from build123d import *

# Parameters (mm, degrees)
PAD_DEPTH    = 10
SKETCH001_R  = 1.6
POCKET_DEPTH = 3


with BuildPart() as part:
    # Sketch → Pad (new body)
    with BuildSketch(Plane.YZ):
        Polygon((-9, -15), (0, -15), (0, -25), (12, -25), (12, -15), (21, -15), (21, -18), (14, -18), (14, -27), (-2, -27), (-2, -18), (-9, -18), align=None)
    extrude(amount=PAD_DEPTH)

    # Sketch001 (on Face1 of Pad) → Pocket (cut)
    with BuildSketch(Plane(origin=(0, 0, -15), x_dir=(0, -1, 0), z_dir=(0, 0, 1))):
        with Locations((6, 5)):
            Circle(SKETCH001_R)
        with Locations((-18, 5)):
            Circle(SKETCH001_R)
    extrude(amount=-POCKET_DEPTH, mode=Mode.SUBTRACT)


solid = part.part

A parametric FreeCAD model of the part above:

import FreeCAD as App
import Part
import Sketcher

V = App.Vector
Q = App.Units.Quantity


def add_polygon(sketch, points):
    """Adds a closed chain of lines whose ends are joined by coincident constraints."""
    first, n = sketch.GeometryCount, len(points)
    for a, b in zip(points, points[1:] + points[:1]):
        sketch.addGeometry(Part.LineSegment(App.Vector(*a, 0), App.Vector(*b, 0)), False)
    for i in range(n):
        sketch.addConstraint(Sketcher.Constraint("Coincident", first + i, 2, first + (i + 1) % n, 1))

doc = App.newDocument("Part")
body = doc.addObject("PartDesign::Body", "Body")

# Sketch on YZ plane
sketch1 = doc.addObject("Sketcher::SketchObject", "Sketch")
body.addObject(sketch1)
sketch1.AttachmentSupport = (doc.YZ_Plane, [""])
sketch1.MapMode = "FlatFace"
add_polygon(sketch1, [(0, -15), (-9, -15), (-9, -18), (-2, -18), (-2, -27), (14, -27), (14, -18), (21, -18), (21, -15), (12, -15), (12, -25), (0, -25)])  # lines 0-11
sketch1.addConstraint(Sketcher.Constraint("Horizontal", 0))
sketch1.addConstraint(Sketcher.Constraint("Vertical", 1))
sketch1.addConstraint(Sketcher.Constraint("Horizontal", 2))
sketch1.addConstraint(Sketcher.Constraint("Vertical", 3))
sketch1.addConstraint(Sketcher.Constraint("Horizontal", 4))
sketch1.addConstraint(Sketcher.Constraint("Vertical", 5))
sketch1.addConstraint(Sketcher.Constraint("Horizontal", 6))
sketch1.addConstraint(Sketcher.Constraint("Vertical", 7))
sketch1.addConstraint(Sketcher.Constraint("Horizontal", 8))
sketch1.addConstraint(Sketcher.Constraint("Vertical", 9))
sketch1.addConstraint(Sketcher.Constraint("Horizontal", 10))
sketch1.addConstraint(Sketcher.Constraint("Vertical", 11))
sketch1.addConstraint(Sketcher.Constraint("PointOnObject", 10, 2, -2))
sketch1.addConstraint(Sketcher.Constraint("Horizontal", 2, 2, 5, 2))
sketch1.addConstraint(Sketcher.Constraint("Horizontal", 0, 2, 7, 2))
sketch1.addConstraint(Sketcher.Constraint("Equal", 2, 6))
sketch1.addConstraint(Sketcher.Constraint("Equal", 0, 8))
sketch1.addConstraint(Sketcher.Constraint("Equal", 8, 3))
sketch1.addConstraint(Sketcher.Constraint("DistanceX", 0, 2, 0, 1, Q("9 mm")))
sketch1.addConstraint(Sketcher.Constraint("DistanceX", 2, 1, 2, 2, Q("7 mm")))
sketch1.addConstraint(Sketcher.Constraint("DistanceX", 4, 1, 4, 2, Q("16 mm")))
sketch1.addConstraint(Sketcher.Constraint("DistanceY", 1, 2, 1, 1, Q("3 mm")))
sketch1.addConstraint(Sketcher.Constraint("DistanceY", 9, 2, 9, 1, Q("10 mm")))
sketch1.addConstraint(Sketcher.Constraint("DistanceY", 0, 2, -1, 1, Q("15 mm")))
pad1 = doc.addObject("PartDesign::Pad", "Pad")
body.addObject(pad1)
pad1.Profile = sketch1
pad1.Length = 10

# Sketch on XY plane
sketch2 = doc.addObject("Sketcher::SketchObject", "Sketch001")
body.addObject(sketch2)
sketch2.AttachmentSupport = (doc.XY_Plane, [""])
sketch2.MapMode = "FlatFace"
sketch2.AttachmentOffset = App.Placement(V(0, 0, -15), App.Rotation())
sketch2.addGeometry(Part.Circle(V(5, -6, 0), V(0, 0, 1), 1.6), False)
sketch2.addGeometry(Part.Circle(V(5, 18, 0), V(0, 0, 1), 1.6), False)
sketch2.addConstraint(Sketcher.Constraint("Equal", 0, 1))
sketch2.addConstraint(Sketcher.Constraint("Vertical", 0, 3, 1, 3))
sketch2.addConstraint(Sketcher.Constraint("Diameter", 0, Q("3.2 mm")))
sketch2.addConstraint(Sketcher.Constraint("DistanceX", -1, 1, 0, 3, Q("5 mm")))
sketch2.addConstraint(Sketcher.Constraint("DistanceY", 0, 3, -1, 1, Q("6 mm")))
sketch2.addConstraint(Sketcher.Constraint("DistanceY", -1, 1, 1, 3, Q("18 mm")))
pocket1 = doc.addObject("PartDesign::Pocket", "Pocket")
body.addObject(pocket1)
pocket1.Profile = sketch2
pocket1.Length = 3

doc.recompute()
